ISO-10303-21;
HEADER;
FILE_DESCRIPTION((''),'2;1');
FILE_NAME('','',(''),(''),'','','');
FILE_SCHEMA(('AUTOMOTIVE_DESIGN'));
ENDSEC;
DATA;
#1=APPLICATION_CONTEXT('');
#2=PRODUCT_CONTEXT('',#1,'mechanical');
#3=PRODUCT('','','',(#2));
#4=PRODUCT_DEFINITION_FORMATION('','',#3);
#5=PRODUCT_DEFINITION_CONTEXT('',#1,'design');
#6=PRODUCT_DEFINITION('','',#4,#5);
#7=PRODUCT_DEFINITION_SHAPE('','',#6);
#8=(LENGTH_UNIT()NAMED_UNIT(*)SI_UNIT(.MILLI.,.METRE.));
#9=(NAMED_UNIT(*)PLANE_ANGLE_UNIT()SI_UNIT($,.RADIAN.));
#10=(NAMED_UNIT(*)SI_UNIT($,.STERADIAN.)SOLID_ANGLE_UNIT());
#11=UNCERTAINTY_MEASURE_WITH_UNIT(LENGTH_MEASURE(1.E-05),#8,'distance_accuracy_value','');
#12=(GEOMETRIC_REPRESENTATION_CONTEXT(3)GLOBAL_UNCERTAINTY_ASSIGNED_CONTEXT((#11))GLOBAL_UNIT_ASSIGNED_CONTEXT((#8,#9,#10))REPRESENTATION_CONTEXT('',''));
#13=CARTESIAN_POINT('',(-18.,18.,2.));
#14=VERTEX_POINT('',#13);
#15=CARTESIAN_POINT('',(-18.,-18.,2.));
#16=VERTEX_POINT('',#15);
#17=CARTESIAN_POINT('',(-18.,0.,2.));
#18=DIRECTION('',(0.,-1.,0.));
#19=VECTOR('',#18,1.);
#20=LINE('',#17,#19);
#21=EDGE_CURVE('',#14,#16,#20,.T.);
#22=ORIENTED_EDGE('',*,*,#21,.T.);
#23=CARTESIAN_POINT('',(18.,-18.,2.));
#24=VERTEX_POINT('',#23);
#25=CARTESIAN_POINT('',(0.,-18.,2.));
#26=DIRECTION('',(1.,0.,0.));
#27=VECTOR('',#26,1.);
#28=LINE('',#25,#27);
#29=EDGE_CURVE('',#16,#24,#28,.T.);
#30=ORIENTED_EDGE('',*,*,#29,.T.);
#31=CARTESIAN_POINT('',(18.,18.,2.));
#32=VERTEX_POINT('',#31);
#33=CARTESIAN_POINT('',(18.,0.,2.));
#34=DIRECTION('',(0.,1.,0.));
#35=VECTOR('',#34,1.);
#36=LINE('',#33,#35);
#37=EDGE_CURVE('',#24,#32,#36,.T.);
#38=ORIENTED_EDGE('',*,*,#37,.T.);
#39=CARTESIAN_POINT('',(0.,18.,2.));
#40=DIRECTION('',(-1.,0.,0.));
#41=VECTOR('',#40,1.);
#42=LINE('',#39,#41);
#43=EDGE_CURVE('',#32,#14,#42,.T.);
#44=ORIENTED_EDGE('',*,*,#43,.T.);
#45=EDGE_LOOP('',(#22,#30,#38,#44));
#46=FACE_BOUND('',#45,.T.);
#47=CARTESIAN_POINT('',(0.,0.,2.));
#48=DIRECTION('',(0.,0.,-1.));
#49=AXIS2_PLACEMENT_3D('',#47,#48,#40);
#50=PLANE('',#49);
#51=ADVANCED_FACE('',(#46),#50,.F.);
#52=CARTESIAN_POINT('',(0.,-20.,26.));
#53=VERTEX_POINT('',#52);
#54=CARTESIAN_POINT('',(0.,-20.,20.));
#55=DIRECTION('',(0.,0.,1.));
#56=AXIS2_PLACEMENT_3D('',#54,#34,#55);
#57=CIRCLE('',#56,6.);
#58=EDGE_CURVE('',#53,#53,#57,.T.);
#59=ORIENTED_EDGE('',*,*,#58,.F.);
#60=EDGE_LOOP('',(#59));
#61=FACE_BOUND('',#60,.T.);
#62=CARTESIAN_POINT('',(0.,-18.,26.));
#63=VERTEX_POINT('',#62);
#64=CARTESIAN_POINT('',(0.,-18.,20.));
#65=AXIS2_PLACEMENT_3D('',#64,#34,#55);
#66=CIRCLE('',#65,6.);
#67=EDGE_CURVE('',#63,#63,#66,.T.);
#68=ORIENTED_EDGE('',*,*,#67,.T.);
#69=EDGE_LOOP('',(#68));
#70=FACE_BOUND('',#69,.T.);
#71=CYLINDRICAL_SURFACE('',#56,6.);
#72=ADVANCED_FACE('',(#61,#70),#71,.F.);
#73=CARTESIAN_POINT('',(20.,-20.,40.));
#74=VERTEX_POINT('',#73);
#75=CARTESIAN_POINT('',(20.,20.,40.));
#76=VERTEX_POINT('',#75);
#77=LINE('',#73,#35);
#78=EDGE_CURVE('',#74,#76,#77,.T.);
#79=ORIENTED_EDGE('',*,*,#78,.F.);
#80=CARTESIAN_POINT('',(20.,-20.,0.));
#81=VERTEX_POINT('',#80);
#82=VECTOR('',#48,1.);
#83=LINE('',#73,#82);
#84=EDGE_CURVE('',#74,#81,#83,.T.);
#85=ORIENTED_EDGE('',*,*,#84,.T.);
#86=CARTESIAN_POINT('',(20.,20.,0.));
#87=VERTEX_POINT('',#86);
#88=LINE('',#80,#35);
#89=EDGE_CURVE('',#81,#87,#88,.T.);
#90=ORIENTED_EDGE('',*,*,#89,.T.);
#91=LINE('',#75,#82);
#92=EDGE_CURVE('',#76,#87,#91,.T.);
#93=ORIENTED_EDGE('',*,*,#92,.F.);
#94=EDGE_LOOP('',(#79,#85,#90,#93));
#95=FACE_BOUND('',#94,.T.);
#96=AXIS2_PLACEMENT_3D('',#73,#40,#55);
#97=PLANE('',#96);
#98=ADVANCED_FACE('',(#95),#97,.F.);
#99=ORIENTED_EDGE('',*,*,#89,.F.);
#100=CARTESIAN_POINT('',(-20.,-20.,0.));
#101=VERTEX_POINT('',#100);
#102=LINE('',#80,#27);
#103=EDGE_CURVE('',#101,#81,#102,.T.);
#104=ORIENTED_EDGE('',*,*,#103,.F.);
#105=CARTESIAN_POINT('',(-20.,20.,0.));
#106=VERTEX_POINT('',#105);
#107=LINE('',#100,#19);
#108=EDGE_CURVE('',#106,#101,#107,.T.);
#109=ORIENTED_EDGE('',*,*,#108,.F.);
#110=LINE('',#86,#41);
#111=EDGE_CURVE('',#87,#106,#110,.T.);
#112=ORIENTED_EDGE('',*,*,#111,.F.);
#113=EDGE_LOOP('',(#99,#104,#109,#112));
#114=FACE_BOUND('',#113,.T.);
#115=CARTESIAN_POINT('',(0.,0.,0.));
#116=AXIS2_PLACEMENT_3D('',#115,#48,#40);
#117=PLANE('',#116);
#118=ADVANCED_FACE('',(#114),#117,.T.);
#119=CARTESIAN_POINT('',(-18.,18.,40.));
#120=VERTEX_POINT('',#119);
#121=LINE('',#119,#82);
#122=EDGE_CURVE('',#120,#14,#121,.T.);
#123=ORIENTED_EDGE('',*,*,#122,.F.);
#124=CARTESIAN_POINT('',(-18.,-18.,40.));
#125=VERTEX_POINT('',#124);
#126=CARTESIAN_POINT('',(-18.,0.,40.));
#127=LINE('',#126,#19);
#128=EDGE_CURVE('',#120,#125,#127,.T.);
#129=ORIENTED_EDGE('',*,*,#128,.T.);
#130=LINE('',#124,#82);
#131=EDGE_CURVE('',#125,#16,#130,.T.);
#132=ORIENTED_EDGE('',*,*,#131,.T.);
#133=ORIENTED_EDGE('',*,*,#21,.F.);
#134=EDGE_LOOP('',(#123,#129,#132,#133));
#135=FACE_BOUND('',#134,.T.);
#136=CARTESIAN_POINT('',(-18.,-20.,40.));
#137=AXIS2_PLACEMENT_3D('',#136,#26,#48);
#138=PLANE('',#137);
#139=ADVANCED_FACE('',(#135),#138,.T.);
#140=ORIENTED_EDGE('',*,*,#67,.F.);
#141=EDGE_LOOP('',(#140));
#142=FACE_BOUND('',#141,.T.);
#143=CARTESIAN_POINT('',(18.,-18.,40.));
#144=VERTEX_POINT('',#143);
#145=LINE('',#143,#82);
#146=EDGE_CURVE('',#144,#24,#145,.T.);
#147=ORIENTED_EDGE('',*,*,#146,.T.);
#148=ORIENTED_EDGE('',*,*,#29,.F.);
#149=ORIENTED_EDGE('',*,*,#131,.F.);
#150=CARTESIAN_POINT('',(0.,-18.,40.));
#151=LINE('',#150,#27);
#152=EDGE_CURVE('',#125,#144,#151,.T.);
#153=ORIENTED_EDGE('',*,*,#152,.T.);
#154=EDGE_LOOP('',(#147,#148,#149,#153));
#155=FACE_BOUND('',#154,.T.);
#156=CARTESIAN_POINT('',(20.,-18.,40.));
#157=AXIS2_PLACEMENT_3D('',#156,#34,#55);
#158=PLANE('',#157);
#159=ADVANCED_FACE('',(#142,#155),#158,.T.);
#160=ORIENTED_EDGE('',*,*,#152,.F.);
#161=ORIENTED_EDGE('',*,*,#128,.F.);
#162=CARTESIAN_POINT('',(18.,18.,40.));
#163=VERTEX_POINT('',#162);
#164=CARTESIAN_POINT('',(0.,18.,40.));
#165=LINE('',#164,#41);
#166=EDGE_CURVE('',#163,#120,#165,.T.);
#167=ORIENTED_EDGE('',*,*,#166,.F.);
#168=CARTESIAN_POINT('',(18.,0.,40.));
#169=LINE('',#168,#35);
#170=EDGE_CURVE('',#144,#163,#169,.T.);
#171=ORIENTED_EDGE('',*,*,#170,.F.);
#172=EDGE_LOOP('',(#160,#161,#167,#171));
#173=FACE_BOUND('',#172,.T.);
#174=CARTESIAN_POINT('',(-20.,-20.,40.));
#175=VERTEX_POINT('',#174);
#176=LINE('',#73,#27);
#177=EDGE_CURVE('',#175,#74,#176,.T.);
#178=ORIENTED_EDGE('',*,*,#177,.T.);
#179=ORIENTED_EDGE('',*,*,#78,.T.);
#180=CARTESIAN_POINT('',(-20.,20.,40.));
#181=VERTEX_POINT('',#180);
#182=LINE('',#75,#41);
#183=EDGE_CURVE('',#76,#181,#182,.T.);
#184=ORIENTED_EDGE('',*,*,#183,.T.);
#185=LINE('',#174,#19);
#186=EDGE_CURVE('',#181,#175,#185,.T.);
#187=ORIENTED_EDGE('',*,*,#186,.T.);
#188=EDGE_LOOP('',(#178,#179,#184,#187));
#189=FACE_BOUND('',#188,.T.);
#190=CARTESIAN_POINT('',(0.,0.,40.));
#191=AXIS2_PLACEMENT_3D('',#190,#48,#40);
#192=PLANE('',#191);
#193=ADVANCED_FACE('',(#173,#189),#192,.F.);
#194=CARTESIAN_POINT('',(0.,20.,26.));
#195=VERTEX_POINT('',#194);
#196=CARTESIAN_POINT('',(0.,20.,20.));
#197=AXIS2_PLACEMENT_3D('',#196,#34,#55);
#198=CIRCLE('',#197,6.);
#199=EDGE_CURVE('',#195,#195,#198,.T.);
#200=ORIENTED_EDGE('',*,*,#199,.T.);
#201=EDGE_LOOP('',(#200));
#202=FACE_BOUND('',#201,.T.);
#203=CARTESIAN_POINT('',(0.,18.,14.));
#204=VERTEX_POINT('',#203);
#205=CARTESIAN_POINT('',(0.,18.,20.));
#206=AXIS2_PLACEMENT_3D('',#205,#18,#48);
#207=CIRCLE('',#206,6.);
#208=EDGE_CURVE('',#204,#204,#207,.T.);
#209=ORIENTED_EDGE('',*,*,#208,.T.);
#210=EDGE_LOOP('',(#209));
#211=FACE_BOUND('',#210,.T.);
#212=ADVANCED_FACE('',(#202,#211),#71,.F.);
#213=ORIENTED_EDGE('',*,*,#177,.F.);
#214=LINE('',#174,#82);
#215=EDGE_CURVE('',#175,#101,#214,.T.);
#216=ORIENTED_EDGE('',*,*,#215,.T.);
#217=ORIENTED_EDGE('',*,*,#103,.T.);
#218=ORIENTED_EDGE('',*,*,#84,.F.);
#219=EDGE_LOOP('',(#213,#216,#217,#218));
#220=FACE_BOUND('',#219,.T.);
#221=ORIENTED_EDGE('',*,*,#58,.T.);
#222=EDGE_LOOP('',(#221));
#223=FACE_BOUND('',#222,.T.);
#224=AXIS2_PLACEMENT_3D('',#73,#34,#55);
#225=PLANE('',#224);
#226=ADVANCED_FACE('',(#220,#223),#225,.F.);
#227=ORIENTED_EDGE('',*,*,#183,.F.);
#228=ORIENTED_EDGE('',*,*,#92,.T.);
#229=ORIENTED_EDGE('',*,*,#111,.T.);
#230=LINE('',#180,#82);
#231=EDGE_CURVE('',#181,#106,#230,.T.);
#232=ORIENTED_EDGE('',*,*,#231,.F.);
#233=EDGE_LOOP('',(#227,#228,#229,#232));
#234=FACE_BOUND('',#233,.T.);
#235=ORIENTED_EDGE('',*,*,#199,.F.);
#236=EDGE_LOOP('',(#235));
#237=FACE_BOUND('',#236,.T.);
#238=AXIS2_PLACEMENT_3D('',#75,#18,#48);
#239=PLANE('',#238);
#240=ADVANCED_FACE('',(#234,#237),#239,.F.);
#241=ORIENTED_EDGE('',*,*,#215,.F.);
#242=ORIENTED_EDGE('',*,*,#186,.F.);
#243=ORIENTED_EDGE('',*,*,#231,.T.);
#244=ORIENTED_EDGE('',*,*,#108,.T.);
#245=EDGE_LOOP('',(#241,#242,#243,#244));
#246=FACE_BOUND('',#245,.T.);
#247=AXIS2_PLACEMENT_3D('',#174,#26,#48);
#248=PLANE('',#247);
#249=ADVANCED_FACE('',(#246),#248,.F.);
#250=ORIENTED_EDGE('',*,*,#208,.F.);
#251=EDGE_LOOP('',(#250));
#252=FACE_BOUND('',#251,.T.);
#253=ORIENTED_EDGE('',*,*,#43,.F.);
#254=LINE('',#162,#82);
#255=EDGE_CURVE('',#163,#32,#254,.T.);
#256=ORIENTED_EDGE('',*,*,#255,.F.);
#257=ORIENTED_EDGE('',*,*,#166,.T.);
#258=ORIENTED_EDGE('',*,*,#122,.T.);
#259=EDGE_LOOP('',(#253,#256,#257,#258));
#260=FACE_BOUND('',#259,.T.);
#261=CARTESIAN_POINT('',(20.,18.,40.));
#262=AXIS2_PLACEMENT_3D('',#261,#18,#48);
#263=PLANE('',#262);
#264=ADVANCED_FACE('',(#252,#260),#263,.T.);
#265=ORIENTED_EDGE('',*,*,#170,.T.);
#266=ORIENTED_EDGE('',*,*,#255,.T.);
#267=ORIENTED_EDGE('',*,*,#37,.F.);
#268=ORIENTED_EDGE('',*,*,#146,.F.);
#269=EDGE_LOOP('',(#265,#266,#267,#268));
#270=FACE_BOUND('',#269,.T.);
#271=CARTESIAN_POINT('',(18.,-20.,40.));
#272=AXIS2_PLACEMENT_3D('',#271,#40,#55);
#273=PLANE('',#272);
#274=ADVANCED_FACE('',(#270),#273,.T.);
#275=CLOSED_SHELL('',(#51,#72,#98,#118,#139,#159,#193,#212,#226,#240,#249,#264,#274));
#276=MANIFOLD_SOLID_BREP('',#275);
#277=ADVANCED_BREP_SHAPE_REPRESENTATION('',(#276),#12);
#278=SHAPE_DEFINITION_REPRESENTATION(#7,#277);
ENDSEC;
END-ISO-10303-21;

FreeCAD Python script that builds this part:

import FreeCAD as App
import Part
import Sketcher
from FreeCAD import Vector
Q = App.Units.Quantity


def faces_at(feature, points):
    """Names of the faces that lie closest to the given points."""
    faces = feature.Shape.Faces
    near = lambda p: min(range(len(faces)), key=lambda i: faces[i].distToShape(Part.Vertex(*p))[0])
    return sorted({f"Face{near(p) + 1}" for p in points})

doc = App.newDocument("Part")
params = doc.addObject("Spreadsheet::Sheet", "Params")
for row, (alias, value) in enumerate([
    ("sketch1_width", "40 mm"),
    ("pad1_length", "40 mm"),
    ("thickness_wall", "2 mm"),
    ("sketch2_diameter", "12 mm"),
    ("pocket1_length", "40 mm"),
], start=1):
    params.set(f"A{row}", alias)
    params.set(f"B{row}", "=" + value)
    params.setAlias(f"B{row}", alias)

body = doc.addObject("PartDesign::Body", "Body")

sketch1 = body.newObject("Sketcher::SketchObject", "Sketch")
sketch1.AttachmentSupport = (doc.getObject("XY_Plane"), [""])
sketch1.MapMode = "FlatFace"
sketch1.addGeometry([
    Part.LineSegment(Vector(-20, -20, 0), Vector(20, -20, 0)),
    Part.LineSegment(Vector(20, -20, 0), Vector(20, 20, 0)),
    Part.LineSegment(Vector(20, 20, 0), Vector(-20, 20, 0)),
    Part.LineSegment(Vector(-20, 20, 0), Vector(-20, -20, 0)),
], False)
sketch1.addConstraint([
    Sketcher.Constraint("Coincident", 0, 2, 1, 1),
    Sketcher.Constraint("Coincident", 1, 2, 2, 1),
    Sketcher.Constraint("Coincident", 2, 2, 3, 1),
    Sketcher.Constraint("Coincident", 3, 2, 0, 1),
    Sketcher.Constraint("Horizontal", 0),
    Sketcher.Constraint("Vertical", 1),
    Sketcher.Constraint("Horizontal", 2),
    Sketcher.Constraint("Vertical", 3),
    Sketcher.Constraint("Symmetric", 0, 2, 2, 2, -1, 1),
    Sketcher.Constraint("Equal", 2, 1),
    Sketcher.Constraint("DistanceX", 0, 1, 0, 2, Q("40 mm")),
])
sketch1.setExpression("Constraints[10]", "Params.sketch1_width")
pad1 = body.newObject("PartDesign::Pad", "Pad")
pad1.Profile = sketch1
pad1.setExpression("Length", "Params.pad1_length")
doc.recompute()

thickness = body.newObject("PartDesign::Thickness", "Thickness")
thickness.Base = (pad1, faces_at(pad1, [(0, 0, 40)]))
thickness.setExpression("Value", "Params.thickness_wall")
thickness.Reversed = True
thickness.Join = "Intersection"

sketch2 = body.newObject("Sketcher::SketchObject", "Sketch001")
sketch2.AttachmentSupport = (doc.getObject("XZ_Plane"), [""])
sketch2.MapMode = "FlatFace"
sketch2.AttachmentOffset = App.Placement(Vector(0, 0, -20), App.Rotation())
sketch2.addGeometry(Part.Circle(Vector(0, 20, 0), Vector(0, 0, 1), 6), False)
sketch2.addConstraint([
    Sketcher.Constraint("PointOnObject", 0, 3, -2),
    Sketcher.Constraint("Diameter", 0, Q("12 mm")),
    Sketcher.Constraint("DistanceY", -1, 1, 0, 3, Q("20 mm")),
])
sketch2.setExpression("Constraints[1]", "Params.sketch2_diameter")
pocket1 = body.newObject("PartDesign::Pocket", "Pocket")
pocket1.Profile = sketch2
pocket1.setExpression("Length", "Params.pocket1_length")
pocket1.Reversed = True

doc.recompute()
